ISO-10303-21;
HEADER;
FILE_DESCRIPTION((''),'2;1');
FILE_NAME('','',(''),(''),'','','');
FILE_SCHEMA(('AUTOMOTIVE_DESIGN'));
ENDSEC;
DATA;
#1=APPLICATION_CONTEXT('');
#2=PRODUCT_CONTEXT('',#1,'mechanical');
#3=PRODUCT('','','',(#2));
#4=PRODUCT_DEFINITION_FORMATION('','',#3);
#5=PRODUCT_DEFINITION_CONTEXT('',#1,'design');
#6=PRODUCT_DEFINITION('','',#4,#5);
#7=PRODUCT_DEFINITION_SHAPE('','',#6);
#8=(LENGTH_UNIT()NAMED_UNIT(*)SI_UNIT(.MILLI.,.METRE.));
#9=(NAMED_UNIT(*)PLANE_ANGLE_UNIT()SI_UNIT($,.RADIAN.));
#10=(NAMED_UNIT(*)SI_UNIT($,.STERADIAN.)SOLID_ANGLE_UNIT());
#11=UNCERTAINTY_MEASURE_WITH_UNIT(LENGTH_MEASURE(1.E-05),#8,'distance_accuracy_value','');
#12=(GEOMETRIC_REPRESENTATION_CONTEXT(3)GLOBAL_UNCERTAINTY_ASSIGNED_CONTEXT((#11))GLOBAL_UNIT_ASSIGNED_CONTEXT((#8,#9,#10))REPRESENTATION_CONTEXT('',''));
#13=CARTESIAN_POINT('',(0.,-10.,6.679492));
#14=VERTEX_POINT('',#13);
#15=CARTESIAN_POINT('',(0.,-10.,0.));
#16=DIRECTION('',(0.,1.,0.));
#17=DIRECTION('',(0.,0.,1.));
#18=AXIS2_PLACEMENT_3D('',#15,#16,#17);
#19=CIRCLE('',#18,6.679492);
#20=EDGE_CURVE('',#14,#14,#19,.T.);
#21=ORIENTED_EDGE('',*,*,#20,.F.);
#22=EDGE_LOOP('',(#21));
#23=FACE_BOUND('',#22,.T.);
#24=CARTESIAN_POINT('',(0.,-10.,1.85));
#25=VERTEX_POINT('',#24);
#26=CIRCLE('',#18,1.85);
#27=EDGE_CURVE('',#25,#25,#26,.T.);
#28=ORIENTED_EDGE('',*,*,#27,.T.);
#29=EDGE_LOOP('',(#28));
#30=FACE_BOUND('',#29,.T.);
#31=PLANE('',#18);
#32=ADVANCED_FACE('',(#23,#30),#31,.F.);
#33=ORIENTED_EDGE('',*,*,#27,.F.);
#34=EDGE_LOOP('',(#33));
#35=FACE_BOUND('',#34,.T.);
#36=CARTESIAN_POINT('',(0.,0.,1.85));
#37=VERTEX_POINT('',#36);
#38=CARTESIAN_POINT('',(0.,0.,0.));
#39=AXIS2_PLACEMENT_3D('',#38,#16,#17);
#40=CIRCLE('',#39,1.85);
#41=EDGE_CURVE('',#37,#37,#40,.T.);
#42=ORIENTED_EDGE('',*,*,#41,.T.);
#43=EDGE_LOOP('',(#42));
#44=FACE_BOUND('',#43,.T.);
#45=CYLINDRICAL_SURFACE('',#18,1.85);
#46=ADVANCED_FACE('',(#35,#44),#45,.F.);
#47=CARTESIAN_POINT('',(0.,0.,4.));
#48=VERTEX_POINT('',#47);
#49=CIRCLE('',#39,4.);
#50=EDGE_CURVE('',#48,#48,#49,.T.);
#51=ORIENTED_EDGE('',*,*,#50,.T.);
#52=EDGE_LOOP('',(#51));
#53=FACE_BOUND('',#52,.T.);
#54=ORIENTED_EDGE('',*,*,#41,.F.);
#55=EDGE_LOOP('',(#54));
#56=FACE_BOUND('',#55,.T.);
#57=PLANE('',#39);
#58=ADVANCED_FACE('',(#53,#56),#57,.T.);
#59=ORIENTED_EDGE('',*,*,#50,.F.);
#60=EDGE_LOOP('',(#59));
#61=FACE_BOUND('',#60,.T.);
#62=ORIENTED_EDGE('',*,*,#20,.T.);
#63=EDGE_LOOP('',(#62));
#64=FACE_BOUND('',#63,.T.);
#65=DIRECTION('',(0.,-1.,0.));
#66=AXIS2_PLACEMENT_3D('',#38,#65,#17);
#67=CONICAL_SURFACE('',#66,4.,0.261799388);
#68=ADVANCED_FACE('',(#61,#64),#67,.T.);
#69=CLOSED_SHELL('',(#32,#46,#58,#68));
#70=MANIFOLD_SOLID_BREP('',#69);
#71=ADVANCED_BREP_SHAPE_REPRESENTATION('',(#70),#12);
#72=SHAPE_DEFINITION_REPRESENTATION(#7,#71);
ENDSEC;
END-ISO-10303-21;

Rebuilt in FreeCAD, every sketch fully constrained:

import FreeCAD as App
import Part
import Sketcher
Q = App.Units.Quantity

doc = App.newDocument("Part")
body = doc.addObject("PartDesign::Body", "Body")

sketch1 = body.newObject("Sketcher::SketchObject", "Sketch")
sketch1.AttachmentSupport = (doc.getObject("XZ_Plane"), [""])
sketch1.MapMode = "FlatFace"
sketch1.addGeometry(Part.Circle(App.Vector(0, 0, 0), App.Vector(0, 0, 1), 4), False)
sketch1.addConstraint([
    Sketcher.Constraint("Coincident", 0, 3, -1, 1),
    Sketcher.Constraint("Diameter", 0, Q("8 mm")),
])
pad1 = body.newObject("PartDesign::Pad", "Pad")
pad1.Profile = sketch1
pad1.Length = 10
pad1.TaperAngle = 15

sketch2 = body.newObject("Sketcher::SketchObject", "Sketch001")
sketch2.AttachmentSupport = (doc.getObject("XZ_Plane"), [""])
sketch2.MapMode = "FlatFace"
sketch2.addGeometry(Part.Circle(App.Vector(0, 0, 0), App.Vector(0, 0, 1), 1.9), False)
sketch2.addConstraint([
    Sketcher.Constraint("Coincident", 0, 3, -1, 1),
    Sketcher.Constraint("Diameter", 0, Q("3.7 mm")),
])
pocket1 = body.newObject("PartDesign::Pocket", "Pocket")
pocket1.Profile = sketch2
pocket1.Type = "ThroughAll"
pocket1.Reversed = True

doc.recompute()
